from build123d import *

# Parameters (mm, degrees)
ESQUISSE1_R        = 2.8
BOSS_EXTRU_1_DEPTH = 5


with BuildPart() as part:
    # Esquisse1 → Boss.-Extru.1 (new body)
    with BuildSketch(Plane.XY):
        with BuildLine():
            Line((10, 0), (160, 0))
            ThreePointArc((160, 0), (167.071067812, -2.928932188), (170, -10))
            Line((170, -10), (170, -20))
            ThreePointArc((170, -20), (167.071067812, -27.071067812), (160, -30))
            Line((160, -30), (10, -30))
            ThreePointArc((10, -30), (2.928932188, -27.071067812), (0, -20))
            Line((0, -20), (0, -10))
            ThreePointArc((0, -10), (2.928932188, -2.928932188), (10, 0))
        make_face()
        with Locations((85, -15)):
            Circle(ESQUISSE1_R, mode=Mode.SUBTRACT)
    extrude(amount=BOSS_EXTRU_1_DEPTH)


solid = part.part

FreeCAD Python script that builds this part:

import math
import FreeCAD as App
import Part
import Sketcher

doc = App.newDocument("Part")
body = doc.addObject("PartDesign::Body", "Body")

# Sketch on XY plane
sketch1 = body.newObject("Sketcher::SketchObject", "Sketch")
sketch1.AttachmentSupport = (doc.getObject("XY_Plane"), [""])
sketch1.MapMode = "FlatFace"
sketch1.addGeometry([
    Part.LineSegment(App.Vector(160, 0, 0), App.Vector(10, 0, 0)),  # 0
    Part.ArcOfCircle(Part.Circle(App.Vector(10, -10, 0), App.Vector(0, 0, 1), 10), math.radians(90), math.radians(180)),  # 1
    Part.LineSegment(App.Vector(0, -10, 0), App.Vector(0, -20, 0)),  # 2
    Part.ArcOfCircle(Part.Circle(App.Vector(10, -20, 0), App.Vector(0, 0, 1), 10), math.radians(180), math.radians(270)),  # 3
    Part.LineSegment(App.Vector(10, -30, 0), App.Vector(160, -30, 0)),  # 4
    Part.ArcOfCircle(Part.Circle(App.Vector(160, -20, 0), App.Vector(0, 0, 1), 10), math.radians(-90), math.radians(0)),  # 5
    Part.LineSegment(App.Vector(170, -20, 0), App.Vector(170, -10, 0)),  # 6
    Part.ArcOfCircle(Part.Circle(App.Vector(160, -10, 0), App.Vector(0, 0, 1), 10), math.radians(0), math.radians(90)),  # 7
    Part.Circle(App.Vector(85, -15, 0), App.Vector(0, 0, 1), 2.8),  # 8
], False)
sketch1.addConstraint([
    Sketcher.Constraint("Tangent", 0, 2, 1, 1),
    Sketcher.Constraint("Tangent", 1, 2, 2, 1),
    Sketcher.Constraint("Tangent", 2, 2, 3, 1),
    Sketcher.Constraint("Tangent", 3, 2, 4, 1),
    Sketcher.Constraint("Tangent", 4, 2, 5, 1),
    Sketcher.Constraint("Tangent", 5, 2, 6, 1),
    Sketcher.Constraint("Tangent", 6, 2, 7, 1),
    Sketcher.Constraint("Tangent", 7, 2, 0, 1),
    Sketcher.Constraint("Horizontal", 0),
    Sketcher.Constraint("Vertical", 2),
    Sketcher.Constraint("Horizontal", 4),
    Sketcher.Constraint("Vertical", 6),
    Sketcher.Constraint("Equal", 1, 3),
    Sketcher.Constraint("Equal", 3, 5),
    Sketcher.Constraint("Equal", 5, 7),
    Sketcher.Constraint("PointOnObject", 0, 2, -1),
    Sketcher.Constraint("PointOnObject", 1, 2, -2),
    Sketcher.Constraint("Radius", 1, 10.0),
    Sketcher.Constraint("Diameter", 8, 5.6),
    Sketcher.Constraint("DistanceX", 0, 2, 0, 1, 150.0),
    Sketcher.Constraint("DistanceY", 2, 2, 2, 1, 10.0),
    Sketcher.Constraint("DistanceX", -1, 1, 8, 3, 85.0),
    Sketcher.Constraint("DistanceY", 8, 3, -1, 1, 15.0),
])
pad1 = body.newObject("PartDesign::Pad", "Pad")
pad1.Profile = sketch1
pad1.Length = 5

doc.recompute()
